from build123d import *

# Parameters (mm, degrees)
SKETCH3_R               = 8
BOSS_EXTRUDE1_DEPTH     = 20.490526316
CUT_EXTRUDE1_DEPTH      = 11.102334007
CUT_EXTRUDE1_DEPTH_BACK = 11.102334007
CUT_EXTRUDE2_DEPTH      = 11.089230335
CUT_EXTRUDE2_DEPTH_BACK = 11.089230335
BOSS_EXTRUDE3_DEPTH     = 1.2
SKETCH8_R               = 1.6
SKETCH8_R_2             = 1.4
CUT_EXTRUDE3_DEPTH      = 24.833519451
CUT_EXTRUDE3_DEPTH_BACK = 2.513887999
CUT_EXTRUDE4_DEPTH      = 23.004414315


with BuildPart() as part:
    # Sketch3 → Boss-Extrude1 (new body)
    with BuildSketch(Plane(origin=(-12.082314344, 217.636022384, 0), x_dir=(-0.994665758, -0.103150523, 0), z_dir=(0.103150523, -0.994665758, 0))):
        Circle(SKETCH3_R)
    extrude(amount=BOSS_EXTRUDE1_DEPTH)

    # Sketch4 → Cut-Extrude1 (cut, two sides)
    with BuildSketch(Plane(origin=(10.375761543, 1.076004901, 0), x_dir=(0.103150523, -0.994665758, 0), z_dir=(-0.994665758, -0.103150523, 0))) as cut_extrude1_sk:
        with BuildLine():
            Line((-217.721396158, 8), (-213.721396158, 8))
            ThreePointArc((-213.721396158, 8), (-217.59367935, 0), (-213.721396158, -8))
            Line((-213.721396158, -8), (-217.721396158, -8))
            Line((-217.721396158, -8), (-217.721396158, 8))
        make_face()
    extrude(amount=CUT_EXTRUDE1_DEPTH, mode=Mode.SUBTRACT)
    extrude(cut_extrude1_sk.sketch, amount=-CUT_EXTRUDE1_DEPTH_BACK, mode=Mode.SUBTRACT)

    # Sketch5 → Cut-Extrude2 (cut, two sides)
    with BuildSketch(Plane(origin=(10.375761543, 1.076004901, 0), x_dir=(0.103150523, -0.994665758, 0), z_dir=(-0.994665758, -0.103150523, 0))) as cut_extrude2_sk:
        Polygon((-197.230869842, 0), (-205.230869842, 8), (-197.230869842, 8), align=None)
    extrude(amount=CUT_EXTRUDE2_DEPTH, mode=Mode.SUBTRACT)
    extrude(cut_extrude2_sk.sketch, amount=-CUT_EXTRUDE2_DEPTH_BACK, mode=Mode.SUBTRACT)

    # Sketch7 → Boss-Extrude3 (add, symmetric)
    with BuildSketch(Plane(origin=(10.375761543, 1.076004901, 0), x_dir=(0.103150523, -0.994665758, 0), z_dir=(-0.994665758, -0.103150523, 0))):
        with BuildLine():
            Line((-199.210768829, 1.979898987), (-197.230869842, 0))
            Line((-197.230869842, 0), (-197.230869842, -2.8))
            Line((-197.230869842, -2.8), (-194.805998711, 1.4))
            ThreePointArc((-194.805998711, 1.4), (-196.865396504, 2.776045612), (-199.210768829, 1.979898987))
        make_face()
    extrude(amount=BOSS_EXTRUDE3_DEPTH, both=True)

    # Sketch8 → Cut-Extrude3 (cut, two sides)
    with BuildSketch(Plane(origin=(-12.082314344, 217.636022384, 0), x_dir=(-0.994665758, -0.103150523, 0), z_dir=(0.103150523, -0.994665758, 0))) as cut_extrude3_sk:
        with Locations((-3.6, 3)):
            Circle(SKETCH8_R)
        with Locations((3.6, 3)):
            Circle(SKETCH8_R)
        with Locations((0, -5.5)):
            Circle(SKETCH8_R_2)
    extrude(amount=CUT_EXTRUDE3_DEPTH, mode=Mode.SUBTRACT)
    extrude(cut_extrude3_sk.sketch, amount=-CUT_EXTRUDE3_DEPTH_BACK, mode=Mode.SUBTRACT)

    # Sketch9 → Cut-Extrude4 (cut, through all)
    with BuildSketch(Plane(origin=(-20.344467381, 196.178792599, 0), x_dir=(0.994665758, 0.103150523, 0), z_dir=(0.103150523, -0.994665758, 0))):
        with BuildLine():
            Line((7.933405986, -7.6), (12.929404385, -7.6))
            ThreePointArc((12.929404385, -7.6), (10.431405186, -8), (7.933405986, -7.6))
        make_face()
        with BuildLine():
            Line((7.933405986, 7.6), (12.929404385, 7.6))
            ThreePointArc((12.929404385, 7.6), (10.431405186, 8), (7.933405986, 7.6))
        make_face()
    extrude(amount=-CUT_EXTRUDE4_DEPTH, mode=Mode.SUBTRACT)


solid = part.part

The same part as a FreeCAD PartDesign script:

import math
import FreeCAD as App
import Part
import Sketcher
from FreeCAD import Vector
Q = App.Units.Quantity


def add_polygon(sketch, points):
    """Adds a closed chain of lines whose ends are joined by coincident constraints."""
    first, n = sketch.GeometryCount, len(points)
    for a, b in zip(points, points[1:] + points[:1]):
        sketch.addGeometry(Part.LineSegment(App.Vector(*a, 0), App.Vector(*b, 0)), False)
    for i in range(n):
        sketch.addConstraint(Sketcher.Constraint("Coincident", first + i, 2, first + (i + 1) % n, 1))

doc = App.newDocument("Part")
body = doc.addObject("PartDesign::Body", "Body")

# Sketch on an angled plane
sketch1 = body.newObject("Sketcher::SketchObject", "Sketch")
sketch1.Placement = App.Placement(Vector(-12.082314, 217.636022, 0), App.Rotation(Vector(-0.994665758, -0.103150523, 0), Vector(0, 0, -1.000000001), Vector(0.103150523, -0.994665758, 0), "ZXY"))
sketch1.addGeometry(Part.Circle(Vector(0, 0, 0), Vector(0, 0, 1), 8), False)
sketch1.addConstraint([
    Sketcher.Constraint("Coincident", 0, 3, -1, 1),
    Sketcher.Constraint("Diameter", 0, Q("16 mm")),
])
pad1 = body.newObject("PartDesign::Pad", "Pad")
pad1.Profile = sketch1
pad1.Length = 20.490526

# Sketch on an angled plane
sketch2 = body.newObject("Sketcher::SketchObject", "Sketch001")
sketch2.Placement = App.Placement(Vector(10.375762, 1.076005, 0), App.Rotation(Vector(0.103150523, -0.994665758, 0), Vector(0, 0, 1.000000001), Vector(-0.994665758, -0.103150523, 0), "ZXY"))
sketch2.addGeometry([
    Part.LineSegment(Vector(-213.721396, 8, 0), Vector(-217.721396, 8, 0)),
    Part.LineSegment(Vector(-217.721396, 8, 0), Vector(-217.721396, -8, 0)),
    Part.LineSegment(Vector(-217.721396, -8, 0), Vector(-213.721396, -8, 0)),
    Part.ArcOfCircle(Part.Circle(Vector(-207.393679, 0, 0), Vector(0, 0, 1), 10.2), math.radians(128.342749), math.radians(231.657251)),
], False)
sketch2.addConstraint([
    Sketcher.Constraint("Coincident", 0, 2, 1, 1),
    Sketcher.Constraint("Coincident", 1, 2, 2, 1),
    Sketcher.Constraint("Coincident", 2, 2, 3, 2),
    Sketcher.Constraint("Coincident", 3, 1, 0, 1),
    Sketcher.Constraint("Horizontal", 0),
    Sketcher.Constraint("Vertical", 1),
    Sketcher.Constraint("Horizontal", 2),
    Sketcher.Constraint("Symmetric", 2, 2, 3, 1, -1),
    Sketcher.Constraint("Radius", 3, Q("10.2 mm")),
    Sketcher.Constraint("DistanceX", 0, 2, 0, 1, Q("4 mm")),
    Sketcher.Constraint("DistanceY", 1, 2, 1, 1, Q("16 mm")),
    Sketcher.Constraint("DistanceX", 3, 3, -1, 1, Q("207.393679 mm")),
])
pocket1 = body.newObject("PartDesign::Pocket", "Pocket")
pocket1.Profile = sketch2
pocket1.Type = "ThroughAll"
pocket1.Midplane = True

# Sketch on an angled plane
sketch3 = body.newObject("Sketcher::SketchObject", "Sketch002")
sketch3.Placement = App.Placement(Vector(10.375762, 1.076005, 0), App.Rotation(Vector(0.103150523, -0.994665758, 0), Vector(0, 0, 1.000000001), Vector(-0.994665758, -0.103150523, 0), "ZXY"))
add_polygon(sketch3, [(-205.23087, 8), (-197.23087, 0), (-197.23087, 8)])  # lines 0-2
sketch3.addConstraint([
    Sketcher.Constraint("Vertical", 1),
    Sketcher.Constraint("Horizontal", 2),
    Sketcher.Constraint("PointOnObject", 0, 2, -1),
    Sketcher.Constraint("Equal", 2, 1),
    Sketcher.Constraint("DistanceX", 2, 2, 2, 1, Q("8 mm")),
    Sketcher.Constraint("DistanceX", 0, 2, -1, 1, Q("197.23087 mm")),
])
pocket2 = body.newObject("PartDesign::Pocket", "Pocket001")
pocket2.Profile = sketch3
pocket2.Type = "ThroughAll"
pocket2.Midplane = True

# Sketch on an angled plane
sketch4 = body.newObject("Sketcher::SketchObject", "Sketch003")
sketch4.Placement = App.Placement(Vector(10.375762, 1.076005, 0), App.Rotation(Vector(0.103150523, -0.994665758, 0), Vector(0, 0, 1.000000001), Vector(-0.994665758, -0.103150523, 0), "ZXY"))
sketch4.addGeometry([
    Part.LineSegment(Vector(-199.210769, 1.979899, 0), Vector(-197.23087, 0, 0)),
    Part.LineSegment(Vector(-197.23087, 0, 0), Vector(-197.23087, -2.8, 0)),
    Part.LineSegment(Vector(-197.23087, -2.8, 0), Vector(-194.805999, 1.4, 0)),
    Part.ArcOfCircle(Part.Circle(Vector(-197.23087, 0, 0), Vector(0, 0, 1), 2.8), math.radians(30), math.radians(135)),
], False)
sketch4.addConstraint([
    Sketcher.Constraint("Coincident", 0, 2, 1, 1),
    Sketcher.Constraint("Coincident", 1, 2, 2, 1),
    Sketcher.Constraint("Coincident", 2, 2, 3, 1),
    Sketcher.Constraint("Coincident", 3, 2, 0, 1),
    Sketcher.Constraint("Vertical", 1),
    Sketcher.Constraint("Coincident", 0, 2, 3, 3),
    Sketcher.Constraint("PointOnObject", 3, 3, -1),
    Sketcher.Constraint("Radius", 3, Q("2.8 mm")),
    Sketcher.Constraint("Angle", 0, Q("-45 deg")),
    Sketcher.Constraint("Angle", 2, Q("60 deg")),
    Sketcher.Constraint("DistanceY", 1, 2, 1, 1, Q("2.8 mm")),
    Sketcher.Constraint("DistanceX", 2, 2, -1, 1, Q("194.805999 mm")),
])
pad2 = body.newObject("PartDesign::Pad", "Pad001")
pad2.Profile = sketch4
pad2.Length = 2.4
pad2.Midplane = True

# Sketch on an angled plane
sketch5 = body.newObject("Sketcher::SketchObject", "Sketch004")
sketch5.Placement = App.Placement(Vector(-12.082314, 217.636022, 0), App.Rotation(Vector(-0.994665758, -0.103150523, 0), Vector(0, 0, -1.000000001), Vector(0.103150523, -0.994665758, 0), "ZXY"))
sketch5.addGeometry([
    Part.Circle(Vector(-3.6, 3, 0), Vector(0, 0, 1), 1.6),
    Part.Circle(Vector(3.6, 3, 0), Vector(0, 0, 1), 1.6),
    Part.Circle(Vector(0, -5.5, 0), Vector(0, 0, 1), 1.4),
], False)
sketch5.addConstraint([
    Sketcher.Constraint("Equal", 0, 1),
    Sketcher.Constraint("Symmetric", 0, 3, 1, 3, -2),
    Sketcher.Constraint("PointOnObject", 2, 3, -2),
    Sketcher.Constraint("Diameter", 0, Q("3.2 mm")),
    Sketcher.Constraint("Diameter", 2, Q("2.8 mm")),
    Sketcher.Constraint("DistanceY", -1, 1, 0, 3, Q("3 mm")),
    Sketcher.Constraint("DistanceX", 0, 3, -1, 1, Q("3.6 mm")),
    Sketcher.Constraint("DistanceY", 2, 3, -1, 1, Q("5.5 mm")),
])
pocket3 = body.newObject("PartDesign::Pocket", "Pocket002")
pocket3.Profile = sketch5
pocket3.Type = "ThroughAll"
pocket3.Midplane = True

# Sketch on an angled plane
sketch6 = body.newObject("Sketcher::SketchObject", "Sketch005")
sketch6.Placement = App.Placement(Vector(-20.344467, 196.178793, 0), App.Rotation(Vector(0.994665758, 0.103150523, 0), Vector(0, 0, 1.000000001), Vector(0.103150523, -0.994665758, 0), "ZXY"))
sketch6.addGeometry([
    Part.LineSegment(Vector(12.929404, -7.6, 0), Vector(7.933406, -7.6, 0)),
    Part.ArcOfCircle(Part.Circle(Vector(10.431405, 0, 0), Vector(0, 0, 1), 8), math.radians(-108.194872), math.radians(-71.805128)),
    Part.LineSegment(Vector(7.933406, 7.6, 0), Vector(12.929404, 7.6, 0)),
    Part.ArcOfCircle(Part.Circle(Vector(10.431405, 0, 0), Vector(0, 0, 1), 8), math.radians(71.805128), math.radians(108.194872)),
], False)
sketch6.addConstraint([
    Sketcher.Constraint("Coincident", 0, 1, 1, 2),
    Sketcher.Constraint("Coincident", 1, 1, 0, 2),
    Sketcher.Constraint("Coincident", 2, 1, 3, 2),
    Sketcher.Constraint("Coincident", 3, 1, 2, 2),
    Sketcher.Constraint("Horizontal", 0),
    Sketcher.Constraint("Horizontal", 2),
    Sketcher.Constraint("Coincident", 3, 3, 1, 3),
    Sketcher.Constraint("Equal", 1, 3),
    Sketcher.Constraint("Symmetric", 1, 1, 2, 1, -1),
    Sketcher.Constraint("Radius", 1, Q("8 mm")),
    Sketcher.Constraint("DistanceY", 0, 1, -1, 1, Q("7.6 mm")),
    Sketcher.Constraint("DistanceX", -1, 1, 1, 3, Q("10.431405 mm")),
])
pocket4 = body.newObject("PartDesign::Pocket", "Pocket003")
pocket4.Profile = sketch6
pocket4.Type = "ThroughAll"

doc.recompute()
